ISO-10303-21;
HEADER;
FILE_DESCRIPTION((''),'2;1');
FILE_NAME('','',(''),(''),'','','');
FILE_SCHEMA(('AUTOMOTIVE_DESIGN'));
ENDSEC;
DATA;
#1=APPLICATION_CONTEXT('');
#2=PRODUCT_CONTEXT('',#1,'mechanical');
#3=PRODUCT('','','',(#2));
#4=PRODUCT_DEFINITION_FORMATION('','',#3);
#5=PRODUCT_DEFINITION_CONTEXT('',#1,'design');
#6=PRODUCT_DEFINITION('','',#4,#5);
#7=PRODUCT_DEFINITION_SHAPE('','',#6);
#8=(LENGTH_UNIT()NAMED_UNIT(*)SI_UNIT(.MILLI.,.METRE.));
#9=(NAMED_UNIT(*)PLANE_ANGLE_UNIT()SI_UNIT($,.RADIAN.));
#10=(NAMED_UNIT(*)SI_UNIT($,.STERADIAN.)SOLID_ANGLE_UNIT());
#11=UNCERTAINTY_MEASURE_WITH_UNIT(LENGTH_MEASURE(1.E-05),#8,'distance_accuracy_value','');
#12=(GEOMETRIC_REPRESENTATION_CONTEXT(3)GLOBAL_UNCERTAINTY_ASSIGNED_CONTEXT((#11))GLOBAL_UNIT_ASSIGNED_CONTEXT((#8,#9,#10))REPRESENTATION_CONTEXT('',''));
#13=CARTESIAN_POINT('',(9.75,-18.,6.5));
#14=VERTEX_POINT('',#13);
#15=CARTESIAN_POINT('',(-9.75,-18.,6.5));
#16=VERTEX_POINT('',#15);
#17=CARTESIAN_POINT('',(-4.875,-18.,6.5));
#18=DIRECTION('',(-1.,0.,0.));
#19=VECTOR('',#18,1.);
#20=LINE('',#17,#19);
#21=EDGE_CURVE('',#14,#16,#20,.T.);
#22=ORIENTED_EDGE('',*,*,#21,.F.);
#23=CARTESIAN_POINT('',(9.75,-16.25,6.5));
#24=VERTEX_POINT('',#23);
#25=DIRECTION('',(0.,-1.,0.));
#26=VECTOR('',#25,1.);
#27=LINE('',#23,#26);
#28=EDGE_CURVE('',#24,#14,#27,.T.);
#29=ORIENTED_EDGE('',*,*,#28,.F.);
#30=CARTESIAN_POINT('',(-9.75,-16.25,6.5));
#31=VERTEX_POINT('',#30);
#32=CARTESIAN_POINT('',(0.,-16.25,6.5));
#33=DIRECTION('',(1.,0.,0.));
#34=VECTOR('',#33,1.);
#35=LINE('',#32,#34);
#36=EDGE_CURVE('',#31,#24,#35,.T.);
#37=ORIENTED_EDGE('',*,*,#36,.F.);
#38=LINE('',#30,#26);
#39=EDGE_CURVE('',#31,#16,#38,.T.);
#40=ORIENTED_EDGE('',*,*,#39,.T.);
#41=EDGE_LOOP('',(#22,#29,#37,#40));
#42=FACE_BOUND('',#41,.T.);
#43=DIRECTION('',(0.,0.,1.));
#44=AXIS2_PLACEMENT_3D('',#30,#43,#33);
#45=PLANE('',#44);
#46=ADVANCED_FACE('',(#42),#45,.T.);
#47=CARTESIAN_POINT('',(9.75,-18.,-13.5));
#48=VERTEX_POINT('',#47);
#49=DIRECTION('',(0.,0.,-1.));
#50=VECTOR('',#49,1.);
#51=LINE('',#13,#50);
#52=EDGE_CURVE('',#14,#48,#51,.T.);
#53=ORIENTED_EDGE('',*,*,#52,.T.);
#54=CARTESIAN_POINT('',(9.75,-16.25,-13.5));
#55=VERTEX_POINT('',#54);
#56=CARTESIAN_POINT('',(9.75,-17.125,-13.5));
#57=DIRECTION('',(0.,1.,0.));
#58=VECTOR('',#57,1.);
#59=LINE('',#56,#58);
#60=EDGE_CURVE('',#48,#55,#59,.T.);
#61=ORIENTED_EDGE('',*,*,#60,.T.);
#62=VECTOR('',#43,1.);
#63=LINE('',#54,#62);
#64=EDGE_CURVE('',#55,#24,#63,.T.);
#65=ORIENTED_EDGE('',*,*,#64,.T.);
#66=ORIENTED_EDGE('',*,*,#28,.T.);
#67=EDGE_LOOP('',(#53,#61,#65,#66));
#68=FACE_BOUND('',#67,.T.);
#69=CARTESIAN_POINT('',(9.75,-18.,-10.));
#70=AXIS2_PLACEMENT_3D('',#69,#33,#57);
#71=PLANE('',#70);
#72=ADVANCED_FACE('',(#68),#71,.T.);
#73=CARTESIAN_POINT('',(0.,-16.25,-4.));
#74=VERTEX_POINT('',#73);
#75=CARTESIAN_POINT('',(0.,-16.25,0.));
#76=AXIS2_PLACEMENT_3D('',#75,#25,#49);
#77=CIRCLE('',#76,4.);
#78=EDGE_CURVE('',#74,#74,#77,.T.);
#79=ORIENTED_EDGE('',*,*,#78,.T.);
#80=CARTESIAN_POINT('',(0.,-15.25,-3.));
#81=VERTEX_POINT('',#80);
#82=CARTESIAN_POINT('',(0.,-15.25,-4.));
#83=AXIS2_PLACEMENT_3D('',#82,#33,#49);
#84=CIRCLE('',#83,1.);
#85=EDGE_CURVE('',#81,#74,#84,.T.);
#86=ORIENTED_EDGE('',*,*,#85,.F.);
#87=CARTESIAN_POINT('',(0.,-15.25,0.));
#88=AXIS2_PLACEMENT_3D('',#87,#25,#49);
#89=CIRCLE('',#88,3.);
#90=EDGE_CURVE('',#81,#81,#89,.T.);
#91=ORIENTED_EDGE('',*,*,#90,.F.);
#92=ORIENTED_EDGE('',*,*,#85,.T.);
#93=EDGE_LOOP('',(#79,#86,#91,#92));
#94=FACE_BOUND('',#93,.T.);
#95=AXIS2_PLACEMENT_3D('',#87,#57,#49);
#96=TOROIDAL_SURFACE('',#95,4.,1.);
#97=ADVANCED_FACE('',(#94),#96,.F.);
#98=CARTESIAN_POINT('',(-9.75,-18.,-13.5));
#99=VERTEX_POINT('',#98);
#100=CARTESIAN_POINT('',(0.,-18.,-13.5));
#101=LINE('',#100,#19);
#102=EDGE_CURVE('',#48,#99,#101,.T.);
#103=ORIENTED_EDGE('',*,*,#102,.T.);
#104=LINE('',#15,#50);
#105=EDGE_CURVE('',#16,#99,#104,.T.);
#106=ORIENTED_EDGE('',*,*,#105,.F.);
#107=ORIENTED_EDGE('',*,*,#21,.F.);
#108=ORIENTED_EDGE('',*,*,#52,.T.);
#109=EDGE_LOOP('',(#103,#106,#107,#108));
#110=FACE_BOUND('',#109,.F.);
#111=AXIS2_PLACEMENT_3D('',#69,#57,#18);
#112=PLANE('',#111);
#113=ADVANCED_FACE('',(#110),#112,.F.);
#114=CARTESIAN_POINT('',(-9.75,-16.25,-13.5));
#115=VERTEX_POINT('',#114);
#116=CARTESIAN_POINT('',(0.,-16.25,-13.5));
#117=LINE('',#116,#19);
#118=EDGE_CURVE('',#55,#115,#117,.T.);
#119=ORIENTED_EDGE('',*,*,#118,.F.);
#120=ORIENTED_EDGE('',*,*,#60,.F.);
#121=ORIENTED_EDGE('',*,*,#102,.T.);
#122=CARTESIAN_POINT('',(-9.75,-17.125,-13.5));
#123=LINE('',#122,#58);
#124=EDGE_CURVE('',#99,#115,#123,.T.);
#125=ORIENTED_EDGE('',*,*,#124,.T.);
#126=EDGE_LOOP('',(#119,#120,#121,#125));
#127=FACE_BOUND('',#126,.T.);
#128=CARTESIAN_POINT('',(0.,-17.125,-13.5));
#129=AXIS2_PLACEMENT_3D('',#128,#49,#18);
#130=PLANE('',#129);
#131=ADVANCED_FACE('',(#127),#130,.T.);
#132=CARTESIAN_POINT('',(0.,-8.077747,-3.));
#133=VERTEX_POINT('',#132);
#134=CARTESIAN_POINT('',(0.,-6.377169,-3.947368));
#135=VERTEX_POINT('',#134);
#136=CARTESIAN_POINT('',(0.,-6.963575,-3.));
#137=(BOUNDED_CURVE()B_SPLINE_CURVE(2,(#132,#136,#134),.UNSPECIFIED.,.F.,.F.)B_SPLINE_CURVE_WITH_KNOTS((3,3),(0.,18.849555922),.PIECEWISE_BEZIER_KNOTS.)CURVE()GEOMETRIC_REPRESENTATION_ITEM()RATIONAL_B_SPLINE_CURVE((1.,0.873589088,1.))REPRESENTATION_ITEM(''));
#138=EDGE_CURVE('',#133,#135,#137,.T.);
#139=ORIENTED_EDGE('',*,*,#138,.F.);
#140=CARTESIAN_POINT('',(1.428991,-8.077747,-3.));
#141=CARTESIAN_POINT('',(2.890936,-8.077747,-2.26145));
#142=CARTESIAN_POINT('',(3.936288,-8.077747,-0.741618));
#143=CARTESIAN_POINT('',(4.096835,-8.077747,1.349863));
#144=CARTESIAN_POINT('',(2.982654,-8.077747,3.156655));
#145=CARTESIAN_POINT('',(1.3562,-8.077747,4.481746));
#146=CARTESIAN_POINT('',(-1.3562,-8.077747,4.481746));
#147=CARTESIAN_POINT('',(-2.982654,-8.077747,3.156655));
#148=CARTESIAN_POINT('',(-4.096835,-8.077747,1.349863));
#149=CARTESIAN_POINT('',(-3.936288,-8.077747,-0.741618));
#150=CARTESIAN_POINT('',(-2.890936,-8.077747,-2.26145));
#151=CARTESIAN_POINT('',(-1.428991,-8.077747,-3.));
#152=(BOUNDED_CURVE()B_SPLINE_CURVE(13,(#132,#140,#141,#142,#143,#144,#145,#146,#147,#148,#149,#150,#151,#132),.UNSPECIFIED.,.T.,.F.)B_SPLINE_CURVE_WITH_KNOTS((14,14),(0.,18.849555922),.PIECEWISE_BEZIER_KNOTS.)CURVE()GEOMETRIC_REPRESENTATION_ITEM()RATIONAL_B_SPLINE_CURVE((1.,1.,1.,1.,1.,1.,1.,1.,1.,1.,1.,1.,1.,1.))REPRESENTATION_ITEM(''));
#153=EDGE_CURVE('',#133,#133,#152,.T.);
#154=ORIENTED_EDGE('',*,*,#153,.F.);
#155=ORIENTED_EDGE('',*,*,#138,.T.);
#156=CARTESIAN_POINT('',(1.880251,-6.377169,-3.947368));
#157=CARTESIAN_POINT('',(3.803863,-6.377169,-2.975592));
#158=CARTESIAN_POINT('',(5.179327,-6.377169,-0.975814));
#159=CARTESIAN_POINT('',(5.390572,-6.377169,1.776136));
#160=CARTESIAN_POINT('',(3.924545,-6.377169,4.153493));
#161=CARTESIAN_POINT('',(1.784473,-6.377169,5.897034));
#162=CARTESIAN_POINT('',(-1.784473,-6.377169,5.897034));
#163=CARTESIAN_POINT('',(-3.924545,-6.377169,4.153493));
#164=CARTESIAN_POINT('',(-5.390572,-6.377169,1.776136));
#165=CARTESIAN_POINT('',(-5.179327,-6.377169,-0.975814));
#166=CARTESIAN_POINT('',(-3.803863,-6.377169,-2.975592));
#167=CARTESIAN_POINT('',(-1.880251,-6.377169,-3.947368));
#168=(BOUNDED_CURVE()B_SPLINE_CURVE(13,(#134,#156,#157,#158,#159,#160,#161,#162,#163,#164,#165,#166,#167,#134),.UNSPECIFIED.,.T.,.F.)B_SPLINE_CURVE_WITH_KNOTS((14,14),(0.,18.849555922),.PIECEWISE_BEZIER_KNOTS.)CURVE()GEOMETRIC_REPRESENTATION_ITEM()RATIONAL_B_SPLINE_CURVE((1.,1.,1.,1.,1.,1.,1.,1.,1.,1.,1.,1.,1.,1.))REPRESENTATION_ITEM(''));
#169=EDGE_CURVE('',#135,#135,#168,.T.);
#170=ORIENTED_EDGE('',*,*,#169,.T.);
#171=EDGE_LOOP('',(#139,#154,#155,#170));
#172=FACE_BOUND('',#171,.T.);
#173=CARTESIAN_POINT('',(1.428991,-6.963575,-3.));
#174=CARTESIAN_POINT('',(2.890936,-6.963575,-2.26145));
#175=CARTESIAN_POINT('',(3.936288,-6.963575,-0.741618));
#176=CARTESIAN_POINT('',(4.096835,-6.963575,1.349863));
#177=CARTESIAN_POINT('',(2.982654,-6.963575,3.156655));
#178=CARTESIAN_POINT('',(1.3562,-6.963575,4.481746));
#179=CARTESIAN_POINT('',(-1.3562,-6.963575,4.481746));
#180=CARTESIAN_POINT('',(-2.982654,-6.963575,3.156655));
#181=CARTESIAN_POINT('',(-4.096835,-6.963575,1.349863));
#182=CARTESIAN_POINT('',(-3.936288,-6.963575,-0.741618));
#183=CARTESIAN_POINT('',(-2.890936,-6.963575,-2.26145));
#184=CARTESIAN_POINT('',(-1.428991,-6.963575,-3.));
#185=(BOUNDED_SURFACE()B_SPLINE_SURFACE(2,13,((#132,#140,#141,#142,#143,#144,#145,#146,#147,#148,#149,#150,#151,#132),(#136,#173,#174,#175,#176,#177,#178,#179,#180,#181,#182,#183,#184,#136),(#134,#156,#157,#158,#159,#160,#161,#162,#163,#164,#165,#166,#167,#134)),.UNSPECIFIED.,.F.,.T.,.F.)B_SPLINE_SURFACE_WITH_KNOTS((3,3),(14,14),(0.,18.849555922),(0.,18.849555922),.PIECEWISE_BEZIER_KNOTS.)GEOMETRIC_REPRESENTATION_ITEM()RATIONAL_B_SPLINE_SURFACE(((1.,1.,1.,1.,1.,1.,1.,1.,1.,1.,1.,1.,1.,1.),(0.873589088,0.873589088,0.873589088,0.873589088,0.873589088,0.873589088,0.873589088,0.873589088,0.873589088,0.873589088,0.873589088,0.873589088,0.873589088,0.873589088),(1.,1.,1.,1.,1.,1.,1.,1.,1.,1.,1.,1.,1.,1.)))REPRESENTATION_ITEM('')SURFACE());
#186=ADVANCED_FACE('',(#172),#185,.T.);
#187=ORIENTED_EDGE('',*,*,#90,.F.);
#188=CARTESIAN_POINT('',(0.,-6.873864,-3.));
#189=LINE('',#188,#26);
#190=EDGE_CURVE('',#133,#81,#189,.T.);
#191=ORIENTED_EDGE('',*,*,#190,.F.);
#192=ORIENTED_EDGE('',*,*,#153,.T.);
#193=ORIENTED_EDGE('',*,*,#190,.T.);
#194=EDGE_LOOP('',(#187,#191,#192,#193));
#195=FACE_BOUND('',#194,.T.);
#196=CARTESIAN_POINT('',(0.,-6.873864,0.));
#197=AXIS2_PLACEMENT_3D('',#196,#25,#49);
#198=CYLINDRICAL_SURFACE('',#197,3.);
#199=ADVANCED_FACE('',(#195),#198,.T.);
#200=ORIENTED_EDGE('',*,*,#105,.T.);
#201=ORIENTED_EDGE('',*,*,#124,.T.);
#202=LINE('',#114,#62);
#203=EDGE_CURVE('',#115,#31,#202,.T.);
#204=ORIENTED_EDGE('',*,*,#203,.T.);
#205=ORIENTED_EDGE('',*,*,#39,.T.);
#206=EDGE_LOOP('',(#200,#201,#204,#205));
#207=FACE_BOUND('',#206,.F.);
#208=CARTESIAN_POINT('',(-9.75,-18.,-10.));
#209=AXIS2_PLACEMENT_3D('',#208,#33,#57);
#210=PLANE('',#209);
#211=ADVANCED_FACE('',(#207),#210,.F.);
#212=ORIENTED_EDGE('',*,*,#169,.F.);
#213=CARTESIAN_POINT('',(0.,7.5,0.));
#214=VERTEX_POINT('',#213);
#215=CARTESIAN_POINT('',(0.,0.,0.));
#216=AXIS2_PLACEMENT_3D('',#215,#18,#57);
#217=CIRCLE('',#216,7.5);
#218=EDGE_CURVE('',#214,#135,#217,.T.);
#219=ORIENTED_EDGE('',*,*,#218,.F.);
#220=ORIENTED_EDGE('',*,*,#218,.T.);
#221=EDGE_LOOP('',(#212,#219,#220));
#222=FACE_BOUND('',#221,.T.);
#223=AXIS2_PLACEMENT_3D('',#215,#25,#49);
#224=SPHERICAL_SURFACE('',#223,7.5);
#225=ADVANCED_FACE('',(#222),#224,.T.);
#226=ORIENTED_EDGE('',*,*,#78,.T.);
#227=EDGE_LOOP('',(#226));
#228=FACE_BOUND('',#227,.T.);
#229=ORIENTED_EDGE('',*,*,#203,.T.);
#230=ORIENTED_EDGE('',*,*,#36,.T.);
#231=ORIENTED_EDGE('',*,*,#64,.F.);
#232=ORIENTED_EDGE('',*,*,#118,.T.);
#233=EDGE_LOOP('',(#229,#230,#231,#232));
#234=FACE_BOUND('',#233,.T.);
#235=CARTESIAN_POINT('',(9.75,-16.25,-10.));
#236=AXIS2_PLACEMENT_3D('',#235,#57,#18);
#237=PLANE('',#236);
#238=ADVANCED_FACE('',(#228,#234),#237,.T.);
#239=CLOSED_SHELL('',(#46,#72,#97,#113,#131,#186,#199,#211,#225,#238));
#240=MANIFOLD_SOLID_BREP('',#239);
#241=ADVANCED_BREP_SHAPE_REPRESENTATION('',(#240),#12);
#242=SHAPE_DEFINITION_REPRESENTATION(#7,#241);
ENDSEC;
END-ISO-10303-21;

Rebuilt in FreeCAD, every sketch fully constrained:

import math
import FreeCAD as App
import Part
import Sketcher
from FreeCAD import Vector


def edges_at(feature, points):
    """Names of the edges that pass closest to the given points."""
    edges = feature.Shape.Edges
    near = lambda p: min(range(len(edges)), key=lambda i: edges[i].distToShape(Part.Vertex(*p))[0])
    return sorted({f"Edge{near(p) + 1}" for p in points})

doc = App.newDocument("Part")
body = doc.addObject("PartDesign::Body", "Body")

# Sketch on YZ plane
sketch1 = body.newObject("Sketcher::SketchObject", "Sketch")
sketch1.AttachmentSupport = (doc.getObject("YZ_Plane"), [""])
sketch1.MapMode = "FlatFace"
sketch1.addGeometry([
    Part.LineSegment(Vector(-16.2, -3, 0), Vector(-6.9, -3, 0)),  # 0
    Part.ArcOfCircle(Part.Circle(Vector(0, 0, 0), Vector(0, 0, 1), 7.5), math.radians(-156), math.radians(0)),  # 1
    Part.LineSegment(Vector(7.5, 0, 0), Vector(-18, 0, 0)),  # 2
    Part.LineSegment(Vector(-18, 0, 0), Vector(-18, -6, 0)),  # 3
    Part.LineSegment(Vector(-18, -6, 0), Vector(-16.2, -6, 0)),  # 4
    Part.LineSegment(Vector(-16.2, -6, 0), Vector(-16.2, -3, 0)),  # 5
], False)
sketch1.addConstraint([
    Sketcher.Constraint("Coincident", 0, 2, 1, 1),
    Sketcher.Constraint("Coincident", 1, 2, 2, 1),
    Sketcher.Constraint("Coincident", 2, 2, 3, 1),
    Sketcher.Constraint("Coincident", 3, 2, 4, 1),
    Sketcher.Constraint("Coincident", 4, 2, 5, 1),
    Sketcher.Constraint("Coincident", 5, 2, 0, 1),
    Sketcher.Constraint("Horizontal", 0),
    Sketcher.Constraint("Horizontal", 2),
    Sketcher.Constraint("Vertical", 3),
    Sketcher.Constraint("Horizontal", 4),
    Sketcher.Constraint("Vertical", 5),
    Sketcher.Constraint("Coincident", 1, 3, -1, 1),
    Sketcher.Constraint("PointOnObject", 1, 2, -1),
    Sketcher.Constraint("Radius", 1, 7.5),
    Sketcher.Constraint("DistanceY", 3, 2, 3, 1, 6.0),
    Sketcher.Constraint("DistanceY", 5, 1, 5, 2, 3.0),
    Sketcher.Constraint("DistanceX", 2, 2, 2, 1, 25.5),
    Sketcher.Constraint("DistanceX", 4, 1, 4, 2, 1.75),
])
revolution = body.newObject("PartDesign::Revolution", "Revolution")
revolution.Profile = sketch1
revolution.ReferenceAxis = (sketch1, ["H_Axis"])
revolution.Angle = 360

# Sketch on XZ plane
sketch2 = body.newObject("Sketcher::SketchObject", "Sketch001")
sketch2.AttachmentSupport = (doc.getObject("XZ_Plane"), [""])
sketch2.MapMode = "FlatFace"
sketch2.AttachmentOffset = App.Placement(Vector(0, 0, 18), App.Rotation())
sketch2.addGeometry([
    Part.LineSegment(Vector(-10, 10, 0), Vector(-10, -10, 0)),
    Part.LineSegment(Vector(-10, -10, 0), Vector(10, -10, 0)),
    Part.LineSegment(Vector(10, -10, 0), Vector(10, 10, 0)),
    Part.LineSegment(Vector(10, 10, 0), Vector(-10, 10, 0)),
], False)
sketch2.addConstraint([
    Sketcher.Constraint("Coincident", 0, 2, 1, 1),
    Sketcher.Constraint("Coincident", 1, 2, 2, 1),
    Sketcher.Constraint("Coincident", 2, 2, 3, 1),
    Sketcher.Constraint("Coincident", 3, 2, 0, 1),
    Sketcher.Constraint("Vertical", 0),
    Sketcher.Constraint("Horizontal", 1),
    Sketcher.Constraint("Vertical", 2),
    Sketcher.Constraint("Horizontal", 3),
    Sketcher.Constraint("Symmetric", 0, 2, 2, 2, -1, 1),
    Sketcher.Constraint("DistanceY", 0, 2, 0, 1, 20.0),
    Sketcher.Constraint("DistanceX", 1, 1, 1, 2, 19.5),
])
pad1 = body.newObject("PartDesign::Pad", "Pad")
pad1.Profile = sketch2
pad1.Length = 1.75
pad1.Reversed = True

# Sketch on XZ plane
sketch3 = body.newObject("Sketcher::SketchObject", "Sketch002")
sketch3.AttachmentSupport = (doc.getObject("XZ_Plane"), [""])
sketch3.MapMode = "FlatFace"
sketch3.AttachmentOffset = App.Placement(Vector(0, 0, 16.25), App.Rotation())
sketch3.addGeometry([
    Part.LineSegment(Vector(-9.8, 6.5, 0), Vector(-9.8, 10, 0)),
    Part.LineSegment(Vector(-9.8, 10, 0), Vector(9.8, 10, 0)),
    Part.LineSegment(Vector(9.8, 10, 0), Vector(9.8, 6.5, 0)),
    Part.LineSegment(Vector(9.8, 6.5, 0), Vector(-9.8, 6.5, 0)),
], False)
sketch3.addConstraint([
    Sketcher.Constraint("Coincident", 0, 2, 1, 1),
    Sketcher.Constraint("Coincident", 1, 2, 2, 1),
    Sketcher.Constraint("Coincident", 2, 2, 3, 1),
    Sketcher.Constraint("Coincident", 3, 2, 0, 1),
    Sketcher.Constraint("Vertical", 0),
    Sketcher.Constraint("Horizontal", 1),
    Sketcher.Constraint("Vertical", 2),
    Sketcher.Constraint("Horizontal", 3),
    Sketcher.Constraint("DistanceX", 1, 1, 1, 2, 19.5),
    Sketcher.Constraint("DistanceY", 0, 1, 0, 2, 3.5),
    Sketcher.Constraint("DistanceY", -1, 1, 0, 2, 10.0),
    Sketcher.Constraint("DistanceX", 0, 2, -1, 1, 9.75),
])
pocket1 = body.newObject("PartDesign::Pocket", "Pocket")
pocket1.Profile = sketch3
pocket1.Type = "ThroughAll"
pocket1.Reversed = True

# Sketch on XY plane
sketch4 = body.newObject("Sketcher::SketchObject", "Sketch003")
sketch4.AttachmentSupport = (doc.getObject("XY_Plane"), [""])
sketch4.MapMode = "FlatFace"
sketch4.AttachmentOffset = App.Placement(Vector(0, 0, -10), App.Rotation())
sketch4.addGeometry([
    Part.LineSegment(Vector(9.8, -16.2, 0), Vector(9.8, -18, 0)),
    Part.LineSegment(Vector(9.8, -18, 0), Vector(-9.8, -18, 0)),
    Part.LineSegment(Vector(-9.8, -18, 0), Vector(-9.8, -16.2, 0)),
    Part.LineSegment(Vector(-9.8, -16.2, 0), Vector(9.8, -16.2, 0)),
], False)
sketch4.addConstraint([
    Sketcher.Constraint("Coincident", 0, 2, 1, 1),
    Sketcher.Constraint("Coincident", 1, 2, 2, 1),
    Sketcher.Constraint("Coincident", 2, 2, 3, 1),
    Sketcher.Constraint("Coincident", 3, 2, 0, 1),
    Sketcher.Constraint("Vertical", 0),
    Sketcher.Constraint("Horizontal", 1),
    Sketcher.Constraint("Vertical", 2),
    Sketcher.Constraint("Horizontal", 3),
    Sketcher.Constraint("DistanceX", 1, 2, 1, 1, 19.5),
    Sketcher.Constraint("DistanceY", 0, 2, -1, 1, 18.0),
    Sketcher.Constraint("DistanceY", 0, 2, 0, 1, 1.75),
    Sketcher.Constraint("DistanceX", -1, 1, 0, 2, 9.75),
])
pad2 = body.newObject("PartDesign::Pad", "Pad001")
pad2.Profile = sketch4
pad2.Length = 3.5
pad2.Reversed = True
doc.recompute()

fillet = body.newObject("PartDesign::Fillet", "Fillet")
fillet.Base = (pad2, edges_at(pad2, [(0, -6.874, 3)]))
fillet.Radius = 2
doc.recompute()

fillet2 = body.newObject("PartDesign::Fillet", "Fillet001")
fillet2.Base = (fillet, edges_at(fillet, [(0, -16.25, 3)]))
fillet2.Radius = 1

doc.recompute()
